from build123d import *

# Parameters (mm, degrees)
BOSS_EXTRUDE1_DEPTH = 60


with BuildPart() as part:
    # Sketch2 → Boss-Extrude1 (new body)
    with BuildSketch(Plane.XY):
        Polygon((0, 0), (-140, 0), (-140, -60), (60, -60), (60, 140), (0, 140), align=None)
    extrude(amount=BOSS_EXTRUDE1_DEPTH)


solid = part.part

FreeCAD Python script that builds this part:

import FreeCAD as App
import Part
import Sketcher
from FreeCAD import Vector


def add_polygon(sketch, points):
    """Adds a closed chain of lines whose ends are joined by coincident constraints."""
    first, n = sketch.GeometryCount, len(points)
    for a, b in zip(points, points[1:] + points[:1]):
        sketch.addGeometry(Part.LineSegment(App.Vector(*a, 0), App.Vector(*b, 0)), False)
    for i in range(n):
        sketch.addConstraint(Sketcher.Constraint("Coincident", first + i, 2, first + (i + 1) % n, 1))

doc = App.newDocument("Part")
body = doc.addObject("PartDesign::Body", "Body")

sketch1 = body.newObject("Sketcher::SketchObject", "Sketch")
sketch1.AttachmentSupport = (doc.getObject("XY_Plane"), [""])
sketch1.MapMode = "FlatFace"
add_polygon(sketch1, [(0, 0), (-140, 0), (-140, -60), (60, -60), (60, 140), (0, 140)])
sketch1.addConstraint(Sketcher.Constraint("Horizontal", 0))
sketch1.addConstraint(Sketcher.Constraint("Vertical", 1))
sketch1.addConstraint(Sketcher.Constraint("Horizontal", 2))
sketch1.addConstraint(Sketcher.Constraint("Vertical", 3))
sketch1.addConstraint(Sketcher.Constraint("Horizontal", 4))
sketch1.addConstraint(Sketcher.Constraint("Vertical", 5))
sketch1.addConstraint(Sketcher.Constraint("Coincident", 5, 2, -1, 1))
sketch1.addConstraint(Sketcher.Constraint("Equal", 4, 1))
sketch1.addConstraint(Sketcher.Constraint("Equal", 2, 3))
sketch1.addConstraint(Sketcher.Constraint("DistanceX", 0, 2, 0, 1, 140.0))
sketch1.addConstraint(Sketcher.Constraint("DistanceX", 2, 1, 2, 2, 200.0))
pad1 = body.newObject("PartDesign::Pad", "Pad")
pad1.Profile = sketch1
pad1.Length = 60

doc.recompute()
